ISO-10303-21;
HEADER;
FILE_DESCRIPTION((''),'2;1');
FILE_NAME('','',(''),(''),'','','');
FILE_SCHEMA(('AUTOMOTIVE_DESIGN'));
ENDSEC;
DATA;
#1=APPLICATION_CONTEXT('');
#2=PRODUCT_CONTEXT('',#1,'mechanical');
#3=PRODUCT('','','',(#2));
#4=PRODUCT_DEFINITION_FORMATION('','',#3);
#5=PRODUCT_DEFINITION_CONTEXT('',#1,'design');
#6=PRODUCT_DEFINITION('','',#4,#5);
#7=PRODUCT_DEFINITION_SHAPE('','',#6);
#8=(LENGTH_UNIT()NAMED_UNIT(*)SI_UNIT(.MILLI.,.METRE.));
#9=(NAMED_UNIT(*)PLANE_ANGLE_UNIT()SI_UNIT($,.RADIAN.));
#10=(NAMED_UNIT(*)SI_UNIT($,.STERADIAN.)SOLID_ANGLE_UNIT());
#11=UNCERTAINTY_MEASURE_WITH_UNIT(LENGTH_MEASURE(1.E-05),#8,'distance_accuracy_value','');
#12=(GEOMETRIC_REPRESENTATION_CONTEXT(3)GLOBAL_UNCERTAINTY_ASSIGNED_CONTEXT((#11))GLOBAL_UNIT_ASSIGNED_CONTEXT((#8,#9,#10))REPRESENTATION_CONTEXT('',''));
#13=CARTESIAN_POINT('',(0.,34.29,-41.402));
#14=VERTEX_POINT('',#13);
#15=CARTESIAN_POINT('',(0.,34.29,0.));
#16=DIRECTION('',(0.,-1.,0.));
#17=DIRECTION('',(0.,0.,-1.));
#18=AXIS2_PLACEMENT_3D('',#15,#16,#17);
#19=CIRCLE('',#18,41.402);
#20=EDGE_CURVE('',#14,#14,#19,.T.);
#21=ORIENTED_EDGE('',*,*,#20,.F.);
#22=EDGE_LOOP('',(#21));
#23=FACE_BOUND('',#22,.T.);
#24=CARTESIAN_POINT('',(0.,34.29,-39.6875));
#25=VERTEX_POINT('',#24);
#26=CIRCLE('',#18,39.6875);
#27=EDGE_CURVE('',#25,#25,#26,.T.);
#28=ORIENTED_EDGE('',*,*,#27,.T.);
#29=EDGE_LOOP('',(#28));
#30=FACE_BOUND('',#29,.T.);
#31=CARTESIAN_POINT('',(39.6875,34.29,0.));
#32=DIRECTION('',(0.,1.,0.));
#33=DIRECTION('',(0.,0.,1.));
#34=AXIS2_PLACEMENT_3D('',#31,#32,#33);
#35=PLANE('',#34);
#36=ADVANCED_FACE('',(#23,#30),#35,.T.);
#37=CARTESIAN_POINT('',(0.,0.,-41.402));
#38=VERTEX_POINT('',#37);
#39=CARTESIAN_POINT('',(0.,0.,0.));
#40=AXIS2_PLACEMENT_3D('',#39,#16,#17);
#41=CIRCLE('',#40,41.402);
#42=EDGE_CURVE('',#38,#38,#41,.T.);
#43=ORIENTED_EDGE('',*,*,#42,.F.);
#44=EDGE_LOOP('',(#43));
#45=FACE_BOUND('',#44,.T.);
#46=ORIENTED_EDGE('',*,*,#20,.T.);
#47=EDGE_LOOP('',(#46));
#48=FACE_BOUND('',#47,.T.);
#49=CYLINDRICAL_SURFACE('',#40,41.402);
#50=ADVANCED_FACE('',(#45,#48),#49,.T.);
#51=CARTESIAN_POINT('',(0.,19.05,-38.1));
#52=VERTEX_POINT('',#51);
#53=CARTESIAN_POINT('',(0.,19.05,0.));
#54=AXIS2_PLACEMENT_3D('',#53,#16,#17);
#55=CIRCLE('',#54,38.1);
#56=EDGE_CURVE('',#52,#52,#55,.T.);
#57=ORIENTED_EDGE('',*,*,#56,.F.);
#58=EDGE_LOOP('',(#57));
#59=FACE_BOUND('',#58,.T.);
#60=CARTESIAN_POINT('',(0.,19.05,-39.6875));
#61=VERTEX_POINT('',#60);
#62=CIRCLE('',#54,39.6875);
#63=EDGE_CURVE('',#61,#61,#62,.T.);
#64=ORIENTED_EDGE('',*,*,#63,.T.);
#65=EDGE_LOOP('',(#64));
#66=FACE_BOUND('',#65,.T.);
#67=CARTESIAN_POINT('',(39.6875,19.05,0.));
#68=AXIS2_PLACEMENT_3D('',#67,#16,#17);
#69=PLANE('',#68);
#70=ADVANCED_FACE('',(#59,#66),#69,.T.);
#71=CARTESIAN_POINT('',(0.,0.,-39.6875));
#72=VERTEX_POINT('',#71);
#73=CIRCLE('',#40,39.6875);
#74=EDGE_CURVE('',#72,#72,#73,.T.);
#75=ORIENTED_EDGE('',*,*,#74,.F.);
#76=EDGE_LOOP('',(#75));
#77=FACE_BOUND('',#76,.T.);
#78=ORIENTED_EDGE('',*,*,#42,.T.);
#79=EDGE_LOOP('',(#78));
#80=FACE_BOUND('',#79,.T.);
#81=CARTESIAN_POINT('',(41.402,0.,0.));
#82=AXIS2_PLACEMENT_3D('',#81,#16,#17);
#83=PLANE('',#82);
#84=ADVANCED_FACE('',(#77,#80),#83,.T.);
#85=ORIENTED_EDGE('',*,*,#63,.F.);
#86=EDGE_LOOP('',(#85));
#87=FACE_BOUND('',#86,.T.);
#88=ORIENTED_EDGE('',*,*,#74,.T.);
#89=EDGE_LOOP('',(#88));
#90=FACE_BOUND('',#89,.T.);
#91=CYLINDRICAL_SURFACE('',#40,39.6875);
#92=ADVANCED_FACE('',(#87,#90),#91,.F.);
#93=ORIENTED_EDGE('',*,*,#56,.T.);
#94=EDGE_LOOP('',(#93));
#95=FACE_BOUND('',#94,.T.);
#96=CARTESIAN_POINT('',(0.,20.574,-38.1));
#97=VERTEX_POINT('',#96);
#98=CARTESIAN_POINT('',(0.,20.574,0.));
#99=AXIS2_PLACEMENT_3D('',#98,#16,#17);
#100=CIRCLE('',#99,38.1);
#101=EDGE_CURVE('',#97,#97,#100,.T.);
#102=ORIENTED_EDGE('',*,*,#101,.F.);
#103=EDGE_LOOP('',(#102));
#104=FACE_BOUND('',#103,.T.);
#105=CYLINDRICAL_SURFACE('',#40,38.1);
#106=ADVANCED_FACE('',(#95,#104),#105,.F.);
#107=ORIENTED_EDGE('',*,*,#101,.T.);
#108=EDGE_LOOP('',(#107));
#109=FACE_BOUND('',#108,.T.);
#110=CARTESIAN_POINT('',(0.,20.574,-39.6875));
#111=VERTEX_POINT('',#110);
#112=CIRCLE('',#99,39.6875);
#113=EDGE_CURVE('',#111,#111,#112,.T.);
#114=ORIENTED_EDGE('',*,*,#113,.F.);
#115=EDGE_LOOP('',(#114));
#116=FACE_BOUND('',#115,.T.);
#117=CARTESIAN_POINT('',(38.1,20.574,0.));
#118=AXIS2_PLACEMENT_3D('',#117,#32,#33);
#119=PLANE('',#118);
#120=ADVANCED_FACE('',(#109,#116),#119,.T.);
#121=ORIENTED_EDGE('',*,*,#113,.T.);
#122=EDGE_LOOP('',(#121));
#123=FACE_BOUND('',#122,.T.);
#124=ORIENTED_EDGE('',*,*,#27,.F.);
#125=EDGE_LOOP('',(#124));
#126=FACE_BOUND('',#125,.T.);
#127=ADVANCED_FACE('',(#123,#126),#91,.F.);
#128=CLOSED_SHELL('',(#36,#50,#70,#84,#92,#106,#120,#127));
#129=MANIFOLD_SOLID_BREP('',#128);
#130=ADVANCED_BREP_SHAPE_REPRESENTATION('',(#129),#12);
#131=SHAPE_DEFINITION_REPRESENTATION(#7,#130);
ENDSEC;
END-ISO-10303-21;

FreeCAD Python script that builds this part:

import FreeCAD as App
import Part
import Sketcher
Q = App.Units.Quantity


def add_polygon(sketch, points):
    """Adds a closed chain of lines whose ends are joined by coincident constraints."""
    first, n = sketch.GeometryCount, len(points)
    for a, b in zip(points, points[1:] + points[:1]):
        sketch.addGeometry(Part.LineSegment(App.Vector(*a, 0), App.Vector(*b, 0)), False)
    for i in range(n):
        sketch.addConstraint(Sketcher.Constraint("Coincident", first + i, 2, first + (i + 1) % n, 1))

doc = App.newDocument("Part")
body = doc.addObject("PartDesign::Body", "Body")

sketch1 = body.newObject("Sketcher::SketchObject", "Sketch")
sketch1.AttachmentSupport = (doc.getObject("XY_Plane"), [""])
sketch1.MapMode = "FlatFace"
add_polygon(sketch1, [(39.7, 19.1), (39.7, 0), (41.4, 0), (41.4, 34.3), (39.7, 34.3), (39.7, 20.6), (38.1, 20.6), (38.1, 19.1)])
sketch1.addConstraint(Sketcher.Constraint("Vertical", 0))
sketch1.addConstraint(Sketcher.Constraint("Horizontal", 1))
sketch1.addConstraint(Sketcher.Constraint("Vertical", 2))
sketch1.addConstraint(Sketcher.Constraint("Horizontal", 3))
sketch1.addConstraint(Sketcher.Constraint("Vertical", 4))
sketch1.addConstraint(Sketcher.Constraint("Horizontal", 5))
sketch1.addConstraint(Sketcher.Constraint("Vertical", 6))
sketch1.addConstraint(Sketcher.Constraint("Horizontal", 7))
sketch1.addConstraint(Sketcher.Constraint("PointOnObject", 0, 2, -1))
sketch1.addConstraint(Sketcher.Constraint("Vertical", 0, 2, 3, 2))
sketch1.addConstraint(Sketcher.Constraint("DistanceY", 0, 2, 0, 1, Q("0.75 in")))
sketch1.addConstraint(Sketcher.Constraint("DistanceY", 2, 1, 2, 2, Q("1.35 in")))
sketch1.addConstraint(Sketcher.Constraint("DistanceY", 4, 2, 4, 1, Q("0.54 in")))
sketch1.addConstraint(Sketcher.Constraint("DistanceX", -1, 1, 5, 2, Q("1.5 in")))
sketch1.addConstraint(Sketcher.Constraint("DistanceX", 5, 2, 5, 1, Q("0.0625 in")))
sketch1.addConstraint(Sketcher.Constraint("DistanceX", -1, 1, 1, 2, Q("1.63 in")))
revolution = body.newObject("PartDesign::Revolution", "Revolution")
revolution.Profile = sketch1
revolution.ReferenceAxis = (sketch1, ["V_Axis"])
revolution.Angle = 360

doc.recompute()
